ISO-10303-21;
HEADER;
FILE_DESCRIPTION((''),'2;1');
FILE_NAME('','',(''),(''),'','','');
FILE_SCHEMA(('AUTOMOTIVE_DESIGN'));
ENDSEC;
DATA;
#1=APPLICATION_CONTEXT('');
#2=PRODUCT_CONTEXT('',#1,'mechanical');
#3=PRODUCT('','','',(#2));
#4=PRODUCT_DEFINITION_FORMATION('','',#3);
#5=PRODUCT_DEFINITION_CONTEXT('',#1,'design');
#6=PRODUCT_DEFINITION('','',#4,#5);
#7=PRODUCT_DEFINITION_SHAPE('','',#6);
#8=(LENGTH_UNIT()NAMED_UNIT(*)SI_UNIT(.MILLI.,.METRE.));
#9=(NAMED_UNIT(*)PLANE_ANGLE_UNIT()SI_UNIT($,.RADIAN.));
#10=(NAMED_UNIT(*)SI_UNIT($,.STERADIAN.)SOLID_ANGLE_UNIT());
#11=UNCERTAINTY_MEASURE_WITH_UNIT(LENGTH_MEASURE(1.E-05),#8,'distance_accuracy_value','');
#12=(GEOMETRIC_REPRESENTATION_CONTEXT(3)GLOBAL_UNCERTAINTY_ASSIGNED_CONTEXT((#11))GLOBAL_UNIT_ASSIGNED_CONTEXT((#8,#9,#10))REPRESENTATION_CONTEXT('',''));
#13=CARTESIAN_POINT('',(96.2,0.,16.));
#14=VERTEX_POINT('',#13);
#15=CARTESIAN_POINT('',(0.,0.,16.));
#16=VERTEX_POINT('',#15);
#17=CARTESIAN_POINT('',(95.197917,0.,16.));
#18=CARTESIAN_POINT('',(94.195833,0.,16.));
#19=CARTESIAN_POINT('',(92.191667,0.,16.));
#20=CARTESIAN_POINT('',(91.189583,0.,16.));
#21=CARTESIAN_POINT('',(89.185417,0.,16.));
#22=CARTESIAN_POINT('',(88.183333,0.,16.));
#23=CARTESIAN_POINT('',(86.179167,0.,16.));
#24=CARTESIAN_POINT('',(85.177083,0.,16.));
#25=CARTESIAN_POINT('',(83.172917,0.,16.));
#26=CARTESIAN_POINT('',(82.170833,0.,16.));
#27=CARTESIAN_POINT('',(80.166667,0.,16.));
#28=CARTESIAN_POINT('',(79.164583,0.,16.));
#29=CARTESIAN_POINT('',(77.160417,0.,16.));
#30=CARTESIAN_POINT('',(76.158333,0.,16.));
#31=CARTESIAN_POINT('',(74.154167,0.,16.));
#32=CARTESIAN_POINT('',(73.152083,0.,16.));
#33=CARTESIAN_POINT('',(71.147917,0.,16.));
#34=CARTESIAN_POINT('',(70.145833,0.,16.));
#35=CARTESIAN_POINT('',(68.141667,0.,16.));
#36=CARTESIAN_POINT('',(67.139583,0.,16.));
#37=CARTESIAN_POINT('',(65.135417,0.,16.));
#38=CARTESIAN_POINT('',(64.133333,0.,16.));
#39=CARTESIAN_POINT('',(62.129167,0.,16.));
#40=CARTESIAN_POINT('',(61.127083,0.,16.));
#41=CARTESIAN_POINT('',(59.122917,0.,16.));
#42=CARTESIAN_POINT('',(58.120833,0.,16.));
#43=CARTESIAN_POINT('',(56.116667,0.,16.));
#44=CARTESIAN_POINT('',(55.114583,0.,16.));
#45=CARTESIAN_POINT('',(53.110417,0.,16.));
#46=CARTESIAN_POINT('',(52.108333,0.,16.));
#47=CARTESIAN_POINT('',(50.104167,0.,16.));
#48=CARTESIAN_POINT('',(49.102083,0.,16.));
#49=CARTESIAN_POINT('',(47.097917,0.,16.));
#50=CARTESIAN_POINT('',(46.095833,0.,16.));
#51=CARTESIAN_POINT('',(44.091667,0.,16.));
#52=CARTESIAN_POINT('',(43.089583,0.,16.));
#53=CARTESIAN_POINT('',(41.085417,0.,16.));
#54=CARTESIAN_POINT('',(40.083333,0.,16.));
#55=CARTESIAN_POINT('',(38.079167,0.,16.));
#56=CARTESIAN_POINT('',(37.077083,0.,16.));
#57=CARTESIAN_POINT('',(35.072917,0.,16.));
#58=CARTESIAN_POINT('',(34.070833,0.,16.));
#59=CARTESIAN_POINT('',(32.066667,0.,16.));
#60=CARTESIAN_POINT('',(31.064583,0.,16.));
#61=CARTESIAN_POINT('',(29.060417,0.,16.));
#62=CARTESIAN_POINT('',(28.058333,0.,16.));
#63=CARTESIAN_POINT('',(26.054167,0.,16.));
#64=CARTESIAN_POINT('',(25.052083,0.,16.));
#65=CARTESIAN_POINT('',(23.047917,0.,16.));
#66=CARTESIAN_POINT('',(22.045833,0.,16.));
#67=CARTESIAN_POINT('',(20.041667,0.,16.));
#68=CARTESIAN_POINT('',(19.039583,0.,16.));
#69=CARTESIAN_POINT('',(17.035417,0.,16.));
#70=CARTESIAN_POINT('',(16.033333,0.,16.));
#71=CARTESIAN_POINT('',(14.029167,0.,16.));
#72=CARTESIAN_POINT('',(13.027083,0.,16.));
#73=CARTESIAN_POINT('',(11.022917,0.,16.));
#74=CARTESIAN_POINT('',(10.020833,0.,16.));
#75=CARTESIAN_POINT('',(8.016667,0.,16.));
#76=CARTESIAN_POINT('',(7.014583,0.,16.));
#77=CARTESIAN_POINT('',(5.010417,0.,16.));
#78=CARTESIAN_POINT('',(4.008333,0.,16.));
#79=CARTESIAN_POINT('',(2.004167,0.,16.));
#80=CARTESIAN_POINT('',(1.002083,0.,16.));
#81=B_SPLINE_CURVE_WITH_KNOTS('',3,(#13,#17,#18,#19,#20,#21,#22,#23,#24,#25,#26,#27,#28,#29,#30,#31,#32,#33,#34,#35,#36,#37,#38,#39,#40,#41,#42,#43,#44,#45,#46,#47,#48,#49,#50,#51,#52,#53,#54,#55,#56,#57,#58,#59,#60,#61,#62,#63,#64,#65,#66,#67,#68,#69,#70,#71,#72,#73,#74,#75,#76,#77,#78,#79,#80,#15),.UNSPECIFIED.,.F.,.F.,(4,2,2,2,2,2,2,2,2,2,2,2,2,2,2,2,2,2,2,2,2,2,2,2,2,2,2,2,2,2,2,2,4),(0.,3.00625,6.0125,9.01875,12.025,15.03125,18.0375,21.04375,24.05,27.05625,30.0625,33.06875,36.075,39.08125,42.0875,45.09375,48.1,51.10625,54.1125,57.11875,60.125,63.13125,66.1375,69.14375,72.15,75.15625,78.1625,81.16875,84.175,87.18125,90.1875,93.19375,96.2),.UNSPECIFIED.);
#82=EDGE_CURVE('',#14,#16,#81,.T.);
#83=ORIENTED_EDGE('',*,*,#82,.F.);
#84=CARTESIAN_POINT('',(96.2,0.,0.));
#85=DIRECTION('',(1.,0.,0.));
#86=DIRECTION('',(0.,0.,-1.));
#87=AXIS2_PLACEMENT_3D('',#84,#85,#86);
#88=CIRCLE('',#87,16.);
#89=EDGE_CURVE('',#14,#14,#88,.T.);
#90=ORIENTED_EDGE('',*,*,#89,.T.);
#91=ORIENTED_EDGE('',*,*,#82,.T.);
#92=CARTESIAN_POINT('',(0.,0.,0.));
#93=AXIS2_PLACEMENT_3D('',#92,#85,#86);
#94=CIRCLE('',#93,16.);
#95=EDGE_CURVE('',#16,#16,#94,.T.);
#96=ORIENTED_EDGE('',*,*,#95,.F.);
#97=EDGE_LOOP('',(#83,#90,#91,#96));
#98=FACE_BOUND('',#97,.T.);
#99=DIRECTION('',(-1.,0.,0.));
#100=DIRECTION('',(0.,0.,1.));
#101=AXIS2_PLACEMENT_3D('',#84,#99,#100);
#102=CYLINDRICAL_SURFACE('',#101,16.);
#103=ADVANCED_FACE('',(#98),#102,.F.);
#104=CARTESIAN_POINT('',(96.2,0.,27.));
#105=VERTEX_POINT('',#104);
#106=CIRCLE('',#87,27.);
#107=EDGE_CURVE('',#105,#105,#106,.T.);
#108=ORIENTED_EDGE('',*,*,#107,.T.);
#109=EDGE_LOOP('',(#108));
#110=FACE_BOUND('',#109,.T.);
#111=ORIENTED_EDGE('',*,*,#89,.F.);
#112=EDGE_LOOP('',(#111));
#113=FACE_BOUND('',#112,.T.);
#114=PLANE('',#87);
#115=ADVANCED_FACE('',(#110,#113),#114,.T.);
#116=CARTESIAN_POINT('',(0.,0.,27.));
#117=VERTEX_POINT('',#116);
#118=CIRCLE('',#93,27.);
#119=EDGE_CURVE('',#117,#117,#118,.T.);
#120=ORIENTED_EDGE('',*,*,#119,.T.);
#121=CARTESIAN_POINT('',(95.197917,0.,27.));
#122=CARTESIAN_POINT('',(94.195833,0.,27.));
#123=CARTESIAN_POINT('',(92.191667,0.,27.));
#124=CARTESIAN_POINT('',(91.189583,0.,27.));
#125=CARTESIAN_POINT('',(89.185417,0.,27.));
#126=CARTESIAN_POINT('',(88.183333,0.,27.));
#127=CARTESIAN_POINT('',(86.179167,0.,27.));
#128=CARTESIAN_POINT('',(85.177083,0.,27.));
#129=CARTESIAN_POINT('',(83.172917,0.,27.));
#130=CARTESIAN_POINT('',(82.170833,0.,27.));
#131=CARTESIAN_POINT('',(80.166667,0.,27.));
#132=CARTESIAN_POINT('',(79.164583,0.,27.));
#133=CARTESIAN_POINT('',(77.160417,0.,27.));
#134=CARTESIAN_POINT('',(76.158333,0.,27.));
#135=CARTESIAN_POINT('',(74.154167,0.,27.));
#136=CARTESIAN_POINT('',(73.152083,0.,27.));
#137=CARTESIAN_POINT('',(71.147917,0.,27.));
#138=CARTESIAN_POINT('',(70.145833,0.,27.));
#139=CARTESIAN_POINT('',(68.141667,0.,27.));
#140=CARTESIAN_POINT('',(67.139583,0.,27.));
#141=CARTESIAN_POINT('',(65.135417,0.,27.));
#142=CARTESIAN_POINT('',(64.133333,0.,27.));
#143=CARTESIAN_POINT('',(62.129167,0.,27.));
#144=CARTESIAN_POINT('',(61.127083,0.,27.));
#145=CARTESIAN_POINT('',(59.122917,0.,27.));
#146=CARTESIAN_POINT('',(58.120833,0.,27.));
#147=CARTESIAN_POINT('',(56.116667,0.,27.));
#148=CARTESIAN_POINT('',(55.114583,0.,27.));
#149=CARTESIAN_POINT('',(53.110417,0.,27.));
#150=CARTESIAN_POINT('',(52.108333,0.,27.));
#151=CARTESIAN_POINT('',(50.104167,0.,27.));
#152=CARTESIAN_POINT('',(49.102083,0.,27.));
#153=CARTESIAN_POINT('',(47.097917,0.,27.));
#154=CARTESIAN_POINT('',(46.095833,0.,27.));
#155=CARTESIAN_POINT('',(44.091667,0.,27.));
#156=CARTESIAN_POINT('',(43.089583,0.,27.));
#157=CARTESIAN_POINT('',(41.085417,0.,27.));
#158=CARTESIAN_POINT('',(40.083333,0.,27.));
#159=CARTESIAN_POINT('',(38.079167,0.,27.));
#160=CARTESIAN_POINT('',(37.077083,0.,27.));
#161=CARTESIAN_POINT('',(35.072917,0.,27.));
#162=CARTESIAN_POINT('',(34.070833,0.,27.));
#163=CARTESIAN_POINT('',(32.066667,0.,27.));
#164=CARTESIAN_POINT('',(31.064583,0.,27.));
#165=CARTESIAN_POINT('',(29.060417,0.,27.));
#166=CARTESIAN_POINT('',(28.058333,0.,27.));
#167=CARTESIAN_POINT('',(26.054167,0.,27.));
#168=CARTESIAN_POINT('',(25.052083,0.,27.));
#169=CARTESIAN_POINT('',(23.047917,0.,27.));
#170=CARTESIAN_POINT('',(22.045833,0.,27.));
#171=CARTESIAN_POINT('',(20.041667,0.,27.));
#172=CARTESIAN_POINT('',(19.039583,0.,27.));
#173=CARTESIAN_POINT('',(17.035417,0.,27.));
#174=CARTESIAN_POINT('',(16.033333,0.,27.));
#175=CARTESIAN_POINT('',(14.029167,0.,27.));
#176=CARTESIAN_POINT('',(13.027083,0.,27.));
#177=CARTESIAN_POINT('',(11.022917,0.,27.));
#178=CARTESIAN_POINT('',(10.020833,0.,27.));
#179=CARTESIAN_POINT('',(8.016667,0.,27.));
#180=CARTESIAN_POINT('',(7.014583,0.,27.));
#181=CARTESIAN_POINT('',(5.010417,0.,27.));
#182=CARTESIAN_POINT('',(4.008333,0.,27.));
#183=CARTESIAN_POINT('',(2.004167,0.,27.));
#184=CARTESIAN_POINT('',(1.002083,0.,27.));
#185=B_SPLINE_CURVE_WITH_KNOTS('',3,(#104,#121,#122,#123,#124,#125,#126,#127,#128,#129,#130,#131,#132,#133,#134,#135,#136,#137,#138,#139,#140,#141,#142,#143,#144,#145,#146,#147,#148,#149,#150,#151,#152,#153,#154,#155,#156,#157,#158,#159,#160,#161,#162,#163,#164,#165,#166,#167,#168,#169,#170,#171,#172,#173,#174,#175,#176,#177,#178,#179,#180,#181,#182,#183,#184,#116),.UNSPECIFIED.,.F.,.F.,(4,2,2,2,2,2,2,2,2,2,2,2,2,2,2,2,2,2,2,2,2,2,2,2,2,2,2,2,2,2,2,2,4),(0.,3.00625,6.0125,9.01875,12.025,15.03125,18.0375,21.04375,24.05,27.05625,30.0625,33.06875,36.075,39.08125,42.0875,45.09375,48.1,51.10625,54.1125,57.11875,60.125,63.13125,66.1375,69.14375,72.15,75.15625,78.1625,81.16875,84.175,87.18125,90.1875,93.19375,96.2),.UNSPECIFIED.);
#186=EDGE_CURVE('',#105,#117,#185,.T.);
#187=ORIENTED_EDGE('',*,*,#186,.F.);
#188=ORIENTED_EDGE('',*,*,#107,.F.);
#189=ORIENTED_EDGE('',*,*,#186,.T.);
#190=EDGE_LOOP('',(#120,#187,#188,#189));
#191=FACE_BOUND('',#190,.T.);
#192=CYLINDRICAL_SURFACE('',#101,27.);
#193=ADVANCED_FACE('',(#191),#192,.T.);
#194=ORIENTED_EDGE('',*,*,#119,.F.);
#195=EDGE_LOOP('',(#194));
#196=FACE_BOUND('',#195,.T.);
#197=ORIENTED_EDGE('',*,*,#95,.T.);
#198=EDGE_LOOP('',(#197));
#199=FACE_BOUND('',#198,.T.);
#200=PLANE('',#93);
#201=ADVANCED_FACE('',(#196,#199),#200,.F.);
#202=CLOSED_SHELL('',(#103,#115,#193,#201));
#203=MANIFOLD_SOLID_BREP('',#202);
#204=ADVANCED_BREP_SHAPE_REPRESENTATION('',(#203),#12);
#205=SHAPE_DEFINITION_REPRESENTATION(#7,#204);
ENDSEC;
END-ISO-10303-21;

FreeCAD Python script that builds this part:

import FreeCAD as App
import Part
import Sketcher
from FreeCAD import Vector
Q = App.Units.Quantity

doc = App.newDocument("Part")
params = doc.addObject("Spreadsheet::Sheet", "Params")
for row, (alias, value) in enumerate([
    ("sketch1_diameter", "54 mm"),
    ("sketch1_diameter2", "32 mm"),
    ("pad1_length", "96.2 mm"),
], start=1):
    params.set(f"A{row}", alias)
    params.set(f"B{row}", "=" + value)
    params.setAlias(f"B{row}", alias)

body = doc.addObject("PartDesign::Body", "Body")

# Sketch on YZ plane
sketch1 = doc.addObject("Sketcher::SketchObject", "Sketch")
body.addObject(sketch1)
sketch1.AttachmentSupport = (doc.YZ_Plane, [""])
sketch1.MapMode = "FlatFace"
sketch1.addGeometry(Part.Circle(Vector(0, 0, 0), Vector(0, 0, 1), 27), False)
sketch1.addGeometry(Part.Circle(Vector(0, 0, 0), Vector(0, 0, 1), 16), False)
sketch1.addConstraint(Sketcher.Constraint("Coincident", 0, 3, -1, 1))
sketch1.addConstraint(Sketcher.Constraint("Coincident", 1, 3, -1, 1))
sketch1.addConstraint(Sketcher.Constraint("Diameter", 0, Q("54 mm")))
sketch1.addConstraint(Sketcher.Constraint("Diameter", 1, Q("32 mm")))
sketch1.setExpression("Constraints[2]", "Params.sketch1_diameter")
sketch1.setExpression("Constraints[3]", "Params.sketch1_diameter2")
pad1 = doc.addObject("PartDesign::Pad", "Pad")
body.addObject(pad1)
pad1.Profile = sketch1
pad1.setExpression("Length", "Params.pad1_length")

doc.recompute()
